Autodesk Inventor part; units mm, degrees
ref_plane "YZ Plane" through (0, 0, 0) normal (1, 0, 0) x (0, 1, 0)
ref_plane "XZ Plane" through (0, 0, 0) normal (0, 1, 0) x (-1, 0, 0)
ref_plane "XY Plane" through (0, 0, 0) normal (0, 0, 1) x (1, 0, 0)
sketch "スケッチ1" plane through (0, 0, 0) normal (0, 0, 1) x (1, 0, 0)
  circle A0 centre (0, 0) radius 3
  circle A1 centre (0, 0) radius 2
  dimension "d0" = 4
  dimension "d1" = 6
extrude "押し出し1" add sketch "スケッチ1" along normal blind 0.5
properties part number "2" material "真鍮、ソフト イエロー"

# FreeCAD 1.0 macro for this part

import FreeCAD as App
import Part
import Sketcher
Q = App.Units.Quantity

doc = App.newDocument("Part")
body = doc.addObject("PartDesign::Body", "Body")

sketch1 = doc.addObject("Sketcher::SketchObject", "Sketch")
body.addObject(sketch1)
sketch1.AttachmentSupport = (doc.XY_Plane, [""])
sketch1.MapMode = "FlatFace"
sketch1.addGeometry([
    Part.Circle(App.Vector(0, 0, 0), App.Vector(0, 0, 1), 3),
    Part.Circle(App.Vector(0, 0, 0), App.Vector(0, 0, 1), 2),
], False)
sketch1.addConstraint([
    Sketcher.Constraint("Coincident", 0, 3, -1, 1),
    Sketcher.Constraint("Coincident", 1, 3, -1, 1),
    Sketcher.Constraint("Diameter", 0, Q("6 mm")),
    Sketcher.Constraint("Diameter", 1, Q("4 mm")),
])
pad1 = doc.addObject("PartDesign::Pad", "Pad")
body.addObject(pad1)
pad1.Profile = sketch1
pad1.Length = 0.5

doc.recompute()
